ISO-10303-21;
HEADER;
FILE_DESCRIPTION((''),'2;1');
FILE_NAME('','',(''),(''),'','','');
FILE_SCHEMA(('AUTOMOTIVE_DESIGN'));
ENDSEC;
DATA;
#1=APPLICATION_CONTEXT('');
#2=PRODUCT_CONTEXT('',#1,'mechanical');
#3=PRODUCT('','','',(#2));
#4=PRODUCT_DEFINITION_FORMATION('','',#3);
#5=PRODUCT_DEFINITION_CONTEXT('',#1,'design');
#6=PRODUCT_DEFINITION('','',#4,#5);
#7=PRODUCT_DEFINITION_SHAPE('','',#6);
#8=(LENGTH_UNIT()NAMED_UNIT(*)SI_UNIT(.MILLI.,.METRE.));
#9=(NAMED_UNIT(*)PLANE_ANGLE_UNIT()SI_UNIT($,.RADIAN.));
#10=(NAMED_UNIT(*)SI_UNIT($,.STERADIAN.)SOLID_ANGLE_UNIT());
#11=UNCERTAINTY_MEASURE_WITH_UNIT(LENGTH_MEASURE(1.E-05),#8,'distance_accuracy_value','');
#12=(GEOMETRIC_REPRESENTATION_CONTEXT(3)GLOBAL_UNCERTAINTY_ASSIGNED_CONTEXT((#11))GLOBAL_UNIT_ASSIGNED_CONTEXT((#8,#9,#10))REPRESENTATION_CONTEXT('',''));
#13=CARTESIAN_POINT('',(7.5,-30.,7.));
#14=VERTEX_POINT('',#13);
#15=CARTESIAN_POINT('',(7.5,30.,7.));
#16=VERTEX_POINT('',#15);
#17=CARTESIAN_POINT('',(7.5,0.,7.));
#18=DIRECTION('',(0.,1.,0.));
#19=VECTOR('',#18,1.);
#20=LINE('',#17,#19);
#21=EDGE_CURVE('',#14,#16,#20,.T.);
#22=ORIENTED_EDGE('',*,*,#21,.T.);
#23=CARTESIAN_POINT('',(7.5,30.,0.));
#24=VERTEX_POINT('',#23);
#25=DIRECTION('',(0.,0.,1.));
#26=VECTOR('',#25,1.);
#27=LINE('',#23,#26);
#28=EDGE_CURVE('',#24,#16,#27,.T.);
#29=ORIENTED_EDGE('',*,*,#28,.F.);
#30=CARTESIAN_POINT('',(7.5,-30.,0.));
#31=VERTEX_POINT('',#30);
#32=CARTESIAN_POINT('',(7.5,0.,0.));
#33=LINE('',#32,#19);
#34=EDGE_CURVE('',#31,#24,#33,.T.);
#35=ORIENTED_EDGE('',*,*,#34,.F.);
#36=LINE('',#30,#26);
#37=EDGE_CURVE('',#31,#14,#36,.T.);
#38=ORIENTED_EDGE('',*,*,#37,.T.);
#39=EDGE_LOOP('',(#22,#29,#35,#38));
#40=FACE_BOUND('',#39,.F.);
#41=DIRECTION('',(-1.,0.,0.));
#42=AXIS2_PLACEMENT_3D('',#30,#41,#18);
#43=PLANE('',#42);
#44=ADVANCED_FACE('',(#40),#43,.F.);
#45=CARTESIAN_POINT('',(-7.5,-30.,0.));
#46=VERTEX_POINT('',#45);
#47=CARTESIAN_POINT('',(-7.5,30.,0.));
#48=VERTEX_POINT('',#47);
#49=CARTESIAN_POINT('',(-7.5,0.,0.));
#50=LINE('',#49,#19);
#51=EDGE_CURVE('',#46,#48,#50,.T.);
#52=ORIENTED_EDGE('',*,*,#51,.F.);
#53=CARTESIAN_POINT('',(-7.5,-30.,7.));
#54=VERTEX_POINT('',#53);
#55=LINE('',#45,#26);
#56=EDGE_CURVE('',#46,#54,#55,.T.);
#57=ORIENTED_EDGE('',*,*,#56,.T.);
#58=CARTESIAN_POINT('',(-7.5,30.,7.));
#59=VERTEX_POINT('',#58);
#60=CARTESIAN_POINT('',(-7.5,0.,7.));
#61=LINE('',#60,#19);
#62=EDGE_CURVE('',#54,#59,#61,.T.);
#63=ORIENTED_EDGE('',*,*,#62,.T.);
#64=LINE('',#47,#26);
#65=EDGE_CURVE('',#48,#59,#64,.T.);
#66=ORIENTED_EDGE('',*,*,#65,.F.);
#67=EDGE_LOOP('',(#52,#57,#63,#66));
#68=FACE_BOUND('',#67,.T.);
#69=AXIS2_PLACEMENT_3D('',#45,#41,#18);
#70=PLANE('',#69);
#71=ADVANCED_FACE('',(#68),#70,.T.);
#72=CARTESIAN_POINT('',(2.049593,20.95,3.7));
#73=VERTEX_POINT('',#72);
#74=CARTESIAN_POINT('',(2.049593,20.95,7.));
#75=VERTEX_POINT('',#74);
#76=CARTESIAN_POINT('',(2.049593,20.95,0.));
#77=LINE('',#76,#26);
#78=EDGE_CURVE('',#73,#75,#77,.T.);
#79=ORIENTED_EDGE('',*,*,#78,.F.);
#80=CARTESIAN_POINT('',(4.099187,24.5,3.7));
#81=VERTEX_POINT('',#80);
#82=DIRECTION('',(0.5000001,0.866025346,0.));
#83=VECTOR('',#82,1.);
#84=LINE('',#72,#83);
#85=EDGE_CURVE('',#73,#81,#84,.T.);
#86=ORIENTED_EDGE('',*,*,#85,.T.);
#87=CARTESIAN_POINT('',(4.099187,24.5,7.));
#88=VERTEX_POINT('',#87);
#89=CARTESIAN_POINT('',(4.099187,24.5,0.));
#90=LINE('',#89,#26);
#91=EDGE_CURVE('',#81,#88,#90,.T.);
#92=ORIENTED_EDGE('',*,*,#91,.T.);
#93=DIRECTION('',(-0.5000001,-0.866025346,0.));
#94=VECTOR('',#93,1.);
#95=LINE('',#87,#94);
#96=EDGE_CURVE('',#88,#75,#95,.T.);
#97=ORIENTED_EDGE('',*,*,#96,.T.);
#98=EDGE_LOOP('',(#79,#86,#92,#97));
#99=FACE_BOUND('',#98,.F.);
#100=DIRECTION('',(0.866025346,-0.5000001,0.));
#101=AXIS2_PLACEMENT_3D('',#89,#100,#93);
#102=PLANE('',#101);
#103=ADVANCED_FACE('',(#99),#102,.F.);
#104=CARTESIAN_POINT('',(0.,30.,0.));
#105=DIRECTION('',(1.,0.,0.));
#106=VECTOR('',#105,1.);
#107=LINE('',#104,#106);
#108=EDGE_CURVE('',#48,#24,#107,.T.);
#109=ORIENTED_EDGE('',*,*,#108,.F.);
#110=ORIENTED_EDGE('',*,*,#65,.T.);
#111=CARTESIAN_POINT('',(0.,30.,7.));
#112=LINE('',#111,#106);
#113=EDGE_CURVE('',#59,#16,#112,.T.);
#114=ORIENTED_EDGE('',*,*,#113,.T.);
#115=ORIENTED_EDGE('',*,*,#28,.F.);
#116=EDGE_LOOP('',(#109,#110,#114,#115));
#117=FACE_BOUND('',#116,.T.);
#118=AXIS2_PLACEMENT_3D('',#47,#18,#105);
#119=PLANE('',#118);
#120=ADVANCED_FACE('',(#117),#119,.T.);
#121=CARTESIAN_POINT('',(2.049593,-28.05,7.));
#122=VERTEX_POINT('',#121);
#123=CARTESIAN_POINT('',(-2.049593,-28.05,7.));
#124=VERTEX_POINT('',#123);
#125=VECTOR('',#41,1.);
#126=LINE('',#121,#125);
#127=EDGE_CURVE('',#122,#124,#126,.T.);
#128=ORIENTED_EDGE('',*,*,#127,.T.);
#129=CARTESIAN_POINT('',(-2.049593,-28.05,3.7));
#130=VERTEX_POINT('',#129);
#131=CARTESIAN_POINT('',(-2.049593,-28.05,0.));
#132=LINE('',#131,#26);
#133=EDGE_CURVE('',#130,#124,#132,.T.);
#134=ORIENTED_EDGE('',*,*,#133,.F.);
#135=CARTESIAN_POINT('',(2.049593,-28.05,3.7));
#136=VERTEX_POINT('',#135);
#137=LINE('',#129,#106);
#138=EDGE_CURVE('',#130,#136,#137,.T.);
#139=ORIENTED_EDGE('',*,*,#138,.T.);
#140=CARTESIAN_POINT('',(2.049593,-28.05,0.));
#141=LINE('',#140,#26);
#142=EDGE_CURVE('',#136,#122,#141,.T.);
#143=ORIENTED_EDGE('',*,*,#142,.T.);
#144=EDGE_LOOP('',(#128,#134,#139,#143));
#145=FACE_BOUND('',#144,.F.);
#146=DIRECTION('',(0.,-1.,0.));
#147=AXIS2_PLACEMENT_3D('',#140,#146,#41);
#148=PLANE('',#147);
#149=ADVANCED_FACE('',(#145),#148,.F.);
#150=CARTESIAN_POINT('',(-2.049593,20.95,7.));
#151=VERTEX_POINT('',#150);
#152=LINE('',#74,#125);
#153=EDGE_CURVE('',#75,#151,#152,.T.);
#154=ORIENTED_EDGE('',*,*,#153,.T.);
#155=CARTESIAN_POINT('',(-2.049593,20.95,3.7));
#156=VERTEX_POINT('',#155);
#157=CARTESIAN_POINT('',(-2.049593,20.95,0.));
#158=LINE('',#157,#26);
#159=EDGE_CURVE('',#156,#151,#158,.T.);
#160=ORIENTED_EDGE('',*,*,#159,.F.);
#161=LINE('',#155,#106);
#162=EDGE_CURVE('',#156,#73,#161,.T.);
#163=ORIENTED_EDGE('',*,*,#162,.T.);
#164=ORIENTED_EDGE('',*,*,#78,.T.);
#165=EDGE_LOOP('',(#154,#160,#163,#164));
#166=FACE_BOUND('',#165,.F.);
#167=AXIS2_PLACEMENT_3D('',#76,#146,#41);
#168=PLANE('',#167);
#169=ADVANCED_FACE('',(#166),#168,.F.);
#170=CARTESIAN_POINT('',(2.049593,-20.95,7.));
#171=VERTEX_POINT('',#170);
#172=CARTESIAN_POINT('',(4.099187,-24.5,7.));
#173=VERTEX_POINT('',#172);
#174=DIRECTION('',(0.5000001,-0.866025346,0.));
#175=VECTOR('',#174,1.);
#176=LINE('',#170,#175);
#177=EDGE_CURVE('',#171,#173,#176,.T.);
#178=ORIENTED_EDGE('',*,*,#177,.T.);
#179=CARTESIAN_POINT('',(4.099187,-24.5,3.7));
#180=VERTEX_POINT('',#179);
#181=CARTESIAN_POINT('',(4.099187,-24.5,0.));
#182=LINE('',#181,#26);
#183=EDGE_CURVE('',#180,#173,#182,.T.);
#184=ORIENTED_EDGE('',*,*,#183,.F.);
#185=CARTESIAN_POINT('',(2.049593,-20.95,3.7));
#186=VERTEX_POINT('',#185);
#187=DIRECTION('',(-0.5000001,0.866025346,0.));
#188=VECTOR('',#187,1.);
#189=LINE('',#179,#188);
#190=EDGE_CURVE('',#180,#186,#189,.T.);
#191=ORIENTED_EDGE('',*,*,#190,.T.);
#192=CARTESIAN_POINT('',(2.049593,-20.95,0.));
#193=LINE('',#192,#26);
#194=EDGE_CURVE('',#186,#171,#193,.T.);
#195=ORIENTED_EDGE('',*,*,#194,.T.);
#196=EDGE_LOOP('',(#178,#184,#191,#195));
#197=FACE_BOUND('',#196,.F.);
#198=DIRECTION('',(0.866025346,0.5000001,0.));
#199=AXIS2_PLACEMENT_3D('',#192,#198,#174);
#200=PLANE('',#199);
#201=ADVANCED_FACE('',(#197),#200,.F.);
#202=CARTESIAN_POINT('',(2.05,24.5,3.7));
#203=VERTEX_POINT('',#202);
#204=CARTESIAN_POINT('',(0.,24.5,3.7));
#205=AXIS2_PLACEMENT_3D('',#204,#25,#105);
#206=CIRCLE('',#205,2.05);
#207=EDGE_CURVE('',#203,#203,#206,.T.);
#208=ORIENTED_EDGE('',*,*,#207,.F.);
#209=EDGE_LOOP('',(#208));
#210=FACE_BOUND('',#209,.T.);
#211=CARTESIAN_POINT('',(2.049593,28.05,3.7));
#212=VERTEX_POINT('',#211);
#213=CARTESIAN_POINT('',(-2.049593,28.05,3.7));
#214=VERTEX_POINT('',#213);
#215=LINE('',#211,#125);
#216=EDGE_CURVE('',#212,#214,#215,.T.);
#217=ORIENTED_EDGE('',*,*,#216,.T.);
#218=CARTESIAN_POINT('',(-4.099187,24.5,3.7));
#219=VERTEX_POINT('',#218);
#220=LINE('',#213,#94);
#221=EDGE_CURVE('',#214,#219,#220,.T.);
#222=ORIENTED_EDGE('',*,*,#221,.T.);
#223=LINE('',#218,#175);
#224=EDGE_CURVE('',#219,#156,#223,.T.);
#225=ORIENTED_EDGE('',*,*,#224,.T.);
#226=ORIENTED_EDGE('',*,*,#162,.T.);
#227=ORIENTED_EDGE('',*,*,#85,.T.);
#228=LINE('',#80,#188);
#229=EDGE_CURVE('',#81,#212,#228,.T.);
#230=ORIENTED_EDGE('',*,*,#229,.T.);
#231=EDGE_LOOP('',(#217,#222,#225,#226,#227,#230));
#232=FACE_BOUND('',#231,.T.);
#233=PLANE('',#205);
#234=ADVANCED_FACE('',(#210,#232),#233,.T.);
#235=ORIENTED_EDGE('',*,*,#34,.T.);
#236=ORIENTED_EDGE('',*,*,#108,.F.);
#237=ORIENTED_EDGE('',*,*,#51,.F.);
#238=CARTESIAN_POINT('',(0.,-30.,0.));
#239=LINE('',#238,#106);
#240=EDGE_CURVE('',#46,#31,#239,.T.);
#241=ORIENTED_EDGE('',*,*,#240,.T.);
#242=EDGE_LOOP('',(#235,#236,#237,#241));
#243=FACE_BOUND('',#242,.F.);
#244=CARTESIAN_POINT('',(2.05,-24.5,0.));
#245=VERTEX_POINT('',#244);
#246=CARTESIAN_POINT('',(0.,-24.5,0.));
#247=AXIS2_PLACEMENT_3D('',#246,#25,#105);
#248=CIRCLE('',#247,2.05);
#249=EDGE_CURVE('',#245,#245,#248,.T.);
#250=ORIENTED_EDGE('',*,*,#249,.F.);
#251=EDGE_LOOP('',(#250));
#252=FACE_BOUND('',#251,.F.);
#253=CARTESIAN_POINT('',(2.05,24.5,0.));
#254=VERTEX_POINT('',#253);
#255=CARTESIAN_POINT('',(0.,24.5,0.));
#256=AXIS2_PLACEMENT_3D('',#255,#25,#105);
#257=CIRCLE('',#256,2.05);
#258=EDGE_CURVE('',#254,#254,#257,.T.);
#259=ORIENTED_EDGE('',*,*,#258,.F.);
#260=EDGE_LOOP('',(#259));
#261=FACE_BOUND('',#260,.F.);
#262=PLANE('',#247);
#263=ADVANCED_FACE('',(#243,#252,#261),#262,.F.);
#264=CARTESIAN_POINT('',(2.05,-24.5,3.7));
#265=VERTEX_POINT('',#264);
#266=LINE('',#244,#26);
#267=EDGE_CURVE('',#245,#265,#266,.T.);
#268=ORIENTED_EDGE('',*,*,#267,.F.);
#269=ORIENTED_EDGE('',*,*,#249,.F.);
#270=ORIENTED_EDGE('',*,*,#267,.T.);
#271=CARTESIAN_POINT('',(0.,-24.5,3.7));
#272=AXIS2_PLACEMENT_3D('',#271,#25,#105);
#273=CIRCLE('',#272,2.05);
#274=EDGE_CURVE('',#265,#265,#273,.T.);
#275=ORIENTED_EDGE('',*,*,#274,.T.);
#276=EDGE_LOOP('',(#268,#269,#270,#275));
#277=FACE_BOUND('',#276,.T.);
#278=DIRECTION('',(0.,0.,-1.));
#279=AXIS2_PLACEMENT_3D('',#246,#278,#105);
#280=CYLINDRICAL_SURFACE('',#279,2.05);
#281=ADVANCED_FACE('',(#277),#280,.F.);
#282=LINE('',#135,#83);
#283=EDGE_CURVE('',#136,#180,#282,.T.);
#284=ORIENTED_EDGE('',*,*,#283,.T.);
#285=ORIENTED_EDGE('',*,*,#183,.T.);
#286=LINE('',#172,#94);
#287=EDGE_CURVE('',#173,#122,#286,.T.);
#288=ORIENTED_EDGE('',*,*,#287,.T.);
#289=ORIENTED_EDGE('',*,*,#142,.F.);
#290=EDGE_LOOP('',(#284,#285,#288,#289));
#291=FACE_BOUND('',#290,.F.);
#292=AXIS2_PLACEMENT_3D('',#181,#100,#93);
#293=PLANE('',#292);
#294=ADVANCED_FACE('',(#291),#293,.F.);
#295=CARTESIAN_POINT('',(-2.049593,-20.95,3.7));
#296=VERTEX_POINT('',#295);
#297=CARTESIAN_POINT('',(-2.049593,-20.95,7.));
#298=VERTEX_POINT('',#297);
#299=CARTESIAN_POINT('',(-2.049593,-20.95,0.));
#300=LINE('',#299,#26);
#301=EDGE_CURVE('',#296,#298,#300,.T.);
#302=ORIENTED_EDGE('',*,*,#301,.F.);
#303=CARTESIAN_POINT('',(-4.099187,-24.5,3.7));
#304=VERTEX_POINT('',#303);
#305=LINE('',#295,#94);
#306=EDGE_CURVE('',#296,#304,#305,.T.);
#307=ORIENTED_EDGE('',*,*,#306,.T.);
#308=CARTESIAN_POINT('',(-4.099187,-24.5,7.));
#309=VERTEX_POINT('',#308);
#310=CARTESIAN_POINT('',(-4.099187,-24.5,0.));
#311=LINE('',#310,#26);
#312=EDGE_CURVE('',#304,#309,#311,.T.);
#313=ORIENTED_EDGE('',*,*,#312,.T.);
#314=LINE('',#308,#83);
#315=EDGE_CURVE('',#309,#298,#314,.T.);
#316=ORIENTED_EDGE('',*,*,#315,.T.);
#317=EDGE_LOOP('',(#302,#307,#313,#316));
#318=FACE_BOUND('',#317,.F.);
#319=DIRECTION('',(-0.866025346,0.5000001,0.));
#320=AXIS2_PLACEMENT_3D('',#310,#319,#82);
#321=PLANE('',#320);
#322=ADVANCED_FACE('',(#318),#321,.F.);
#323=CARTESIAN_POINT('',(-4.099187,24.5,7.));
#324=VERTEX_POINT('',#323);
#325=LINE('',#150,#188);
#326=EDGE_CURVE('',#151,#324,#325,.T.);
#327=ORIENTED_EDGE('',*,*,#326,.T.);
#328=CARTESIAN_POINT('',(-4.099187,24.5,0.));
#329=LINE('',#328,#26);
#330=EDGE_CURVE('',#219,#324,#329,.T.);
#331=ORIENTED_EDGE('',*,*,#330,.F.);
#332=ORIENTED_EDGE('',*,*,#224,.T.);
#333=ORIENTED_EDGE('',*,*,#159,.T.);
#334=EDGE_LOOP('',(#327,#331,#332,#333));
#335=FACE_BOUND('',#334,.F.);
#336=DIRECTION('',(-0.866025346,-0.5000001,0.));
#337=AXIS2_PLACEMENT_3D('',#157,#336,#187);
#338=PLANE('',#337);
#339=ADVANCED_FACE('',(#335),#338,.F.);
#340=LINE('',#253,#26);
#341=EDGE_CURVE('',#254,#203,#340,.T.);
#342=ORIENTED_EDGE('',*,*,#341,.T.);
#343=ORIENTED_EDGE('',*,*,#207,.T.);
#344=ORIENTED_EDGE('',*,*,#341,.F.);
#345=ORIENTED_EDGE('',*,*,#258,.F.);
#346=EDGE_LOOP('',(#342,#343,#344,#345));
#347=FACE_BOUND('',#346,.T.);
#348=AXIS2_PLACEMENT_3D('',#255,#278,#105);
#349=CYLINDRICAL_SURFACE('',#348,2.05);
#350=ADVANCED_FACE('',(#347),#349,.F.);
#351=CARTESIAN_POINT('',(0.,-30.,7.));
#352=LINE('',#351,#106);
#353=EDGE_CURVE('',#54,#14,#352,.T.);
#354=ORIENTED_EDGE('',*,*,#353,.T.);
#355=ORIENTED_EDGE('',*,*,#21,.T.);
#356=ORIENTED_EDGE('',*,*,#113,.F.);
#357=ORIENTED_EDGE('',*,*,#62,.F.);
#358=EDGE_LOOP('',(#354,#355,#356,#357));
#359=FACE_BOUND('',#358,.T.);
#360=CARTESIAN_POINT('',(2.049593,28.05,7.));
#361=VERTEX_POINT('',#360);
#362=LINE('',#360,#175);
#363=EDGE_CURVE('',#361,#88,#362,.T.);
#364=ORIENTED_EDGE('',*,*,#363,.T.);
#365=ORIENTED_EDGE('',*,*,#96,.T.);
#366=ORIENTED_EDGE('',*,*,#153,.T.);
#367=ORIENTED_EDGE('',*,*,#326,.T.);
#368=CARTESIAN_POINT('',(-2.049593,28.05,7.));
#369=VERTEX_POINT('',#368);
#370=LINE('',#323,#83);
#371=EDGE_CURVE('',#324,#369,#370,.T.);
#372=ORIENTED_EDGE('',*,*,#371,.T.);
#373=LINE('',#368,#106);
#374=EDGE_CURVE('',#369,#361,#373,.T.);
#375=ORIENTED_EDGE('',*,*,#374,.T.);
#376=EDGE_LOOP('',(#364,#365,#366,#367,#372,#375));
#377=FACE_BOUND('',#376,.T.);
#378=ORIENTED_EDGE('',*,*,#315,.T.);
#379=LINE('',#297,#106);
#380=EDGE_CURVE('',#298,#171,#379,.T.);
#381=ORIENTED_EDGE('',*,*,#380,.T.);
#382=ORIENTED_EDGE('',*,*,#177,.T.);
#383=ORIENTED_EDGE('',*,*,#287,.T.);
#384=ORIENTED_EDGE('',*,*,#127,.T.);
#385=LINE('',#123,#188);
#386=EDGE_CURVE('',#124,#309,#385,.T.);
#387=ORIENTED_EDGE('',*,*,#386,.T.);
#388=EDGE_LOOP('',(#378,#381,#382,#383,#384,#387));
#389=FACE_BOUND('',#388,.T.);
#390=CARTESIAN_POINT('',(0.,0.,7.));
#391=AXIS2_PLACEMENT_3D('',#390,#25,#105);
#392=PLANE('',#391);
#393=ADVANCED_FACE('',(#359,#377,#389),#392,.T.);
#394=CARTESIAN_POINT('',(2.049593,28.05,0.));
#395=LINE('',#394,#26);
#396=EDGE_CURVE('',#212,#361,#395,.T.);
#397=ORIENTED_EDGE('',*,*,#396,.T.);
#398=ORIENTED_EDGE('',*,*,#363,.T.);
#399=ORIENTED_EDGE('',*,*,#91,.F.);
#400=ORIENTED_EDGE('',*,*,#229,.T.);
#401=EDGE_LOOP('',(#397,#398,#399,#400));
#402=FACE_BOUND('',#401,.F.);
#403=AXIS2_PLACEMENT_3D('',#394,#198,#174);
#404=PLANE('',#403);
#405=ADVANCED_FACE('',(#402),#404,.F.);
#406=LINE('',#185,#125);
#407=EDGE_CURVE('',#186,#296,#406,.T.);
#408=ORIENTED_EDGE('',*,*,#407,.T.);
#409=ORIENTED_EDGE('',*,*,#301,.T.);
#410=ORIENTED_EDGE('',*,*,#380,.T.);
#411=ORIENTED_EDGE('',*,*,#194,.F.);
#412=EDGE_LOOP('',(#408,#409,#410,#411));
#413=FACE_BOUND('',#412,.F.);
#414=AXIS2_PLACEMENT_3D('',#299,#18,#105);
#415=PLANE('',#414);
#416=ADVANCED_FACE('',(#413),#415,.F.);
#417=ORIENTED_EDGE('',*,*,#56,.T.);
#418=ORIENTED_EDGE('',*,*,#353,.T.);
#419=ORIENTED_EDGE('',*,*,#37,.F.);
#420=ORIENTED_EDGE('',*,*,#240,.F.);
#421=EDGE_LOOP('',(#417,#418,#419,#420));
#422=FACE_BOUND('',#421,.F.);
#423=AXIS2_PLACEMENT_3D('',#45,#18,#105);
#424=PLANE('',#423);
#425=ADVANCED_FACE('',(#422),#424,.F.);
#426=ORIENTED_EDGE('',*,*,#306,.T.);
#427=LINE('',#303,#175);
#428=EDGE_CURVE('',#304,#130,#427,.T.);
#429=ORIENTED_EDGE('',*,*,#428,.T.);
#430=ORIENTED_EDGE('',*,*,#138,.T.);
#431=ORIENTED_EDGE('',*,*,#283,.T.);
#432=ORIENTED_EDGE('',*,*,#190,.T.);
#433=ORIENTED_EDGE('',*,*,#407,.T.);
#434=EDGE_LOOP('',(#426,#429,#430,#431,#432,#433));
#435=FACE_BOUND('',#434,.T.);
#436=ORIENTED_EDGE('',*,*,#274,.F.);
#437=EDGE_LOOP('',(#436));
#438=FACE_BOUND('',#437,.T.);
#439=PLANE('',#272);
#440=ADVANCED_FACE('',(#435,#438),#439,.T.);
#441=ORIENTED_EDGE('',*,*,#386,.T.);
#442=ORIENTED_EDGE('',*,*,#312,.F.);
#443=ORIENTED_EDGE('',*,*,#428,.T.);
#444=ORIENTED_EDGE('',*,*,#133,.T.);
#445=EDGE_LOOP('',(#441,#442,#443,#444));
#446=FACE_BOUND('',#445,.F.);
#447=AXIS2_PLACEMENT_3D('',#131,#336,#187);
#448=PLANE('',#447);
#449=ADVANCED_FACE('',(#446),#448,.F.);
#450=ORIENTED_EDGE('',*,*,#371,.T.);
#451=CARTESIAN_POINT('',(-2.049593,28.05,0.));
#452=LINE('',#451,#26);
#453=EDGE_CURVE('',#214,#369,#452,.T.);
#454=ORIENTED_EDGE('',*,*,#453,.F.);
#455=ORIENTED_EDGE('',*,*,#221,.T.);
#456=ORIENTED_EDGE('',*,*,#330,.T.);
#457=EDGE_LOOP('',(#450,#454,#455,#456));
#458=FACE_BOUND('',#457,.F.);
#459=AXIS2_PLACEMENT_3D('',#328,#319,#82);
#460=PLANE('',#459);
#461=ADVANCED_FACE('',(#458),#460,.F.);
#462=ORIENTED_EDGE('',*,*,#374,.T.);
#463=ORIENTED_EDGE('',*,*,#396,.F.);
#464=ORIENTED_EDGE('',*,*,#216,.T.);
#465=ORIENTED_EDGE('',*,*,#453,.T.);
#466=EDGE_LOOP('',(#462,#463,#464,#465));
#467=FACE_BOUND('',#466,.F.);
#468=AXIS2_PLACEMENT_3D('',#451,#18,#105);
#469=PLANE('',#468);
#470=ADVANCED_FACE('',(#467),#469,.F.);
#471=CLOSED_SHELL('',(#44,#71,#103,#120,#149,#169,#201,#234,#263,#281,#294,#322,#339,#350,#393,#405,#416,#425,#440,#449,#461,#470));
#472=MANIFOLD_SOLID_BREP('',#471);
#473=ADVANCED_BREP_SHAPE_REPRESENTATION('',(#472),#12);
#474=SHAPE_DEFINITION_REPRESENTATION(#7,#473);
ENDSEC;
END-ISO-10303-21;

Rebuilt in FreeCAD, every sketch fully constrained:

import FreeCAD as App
import Part
import Sketcher
Q = App.Units.Quantity


def add_polygon(sketch, points):
    """Adds a closed chain of lines whose ends are joined by coincident constraints."""
    first, n = sketch.GeometryCount, len(points)
    for a, b in zip(points, points[1:] + points[:1]):
        sketch.addGeometry(Part.LineSegment(App.Vector(*a, 0), App.Vector(*b, 0)), False)
    for i in range(n):
        sketch.addConstraint(Sketcher.Constraint("Coincident", first + i, 2, first + (i + 1) % n, 1))

doc = App.newDocument("Part")
body = doc.addObject("PartDesign::Body", "Body")

sketch1 = body.newObject("Sketcher::SketchObject", "Sketch")
sketch1.AttachmentSupport = (doc.getObject("XY_Plane"), [""])
sketch1.MapMode = "FlatFace"
add_polygon(sketch1, [(-7.5, 30), (-7.5, -30), (7.5, -30), (7.5, 30)])
add_polygon(sketch1, [(-4.1, -24.5), (-2, -20.9), (2, -20.9), (4.1, -24.5), (2, -28.1), (-2, -28.1)])
add_polygon(sketch1, [(2, 28.1), (4.1, 24.5), (2, 20.9), (-2, 20.9), (-4.1, 24.5), (-2, 28.1)])
sketch1.addConstraint([
    Sketcher.Constraint("Vertical", 0),
    Sketcher.Constraint("Horizontal", 1),
    Sketcher.Constraint("Vertical", 2),
    Sketcher.Constraint("Horizontal", 3),
    Sketcher.Constraint("Horizontal", 5),
    Sketcher.Constraint("Horizontal", 8),
    Sketcher.Constraint("Horizontal", 12),
    Sketcher.Constraint("Horizontal", 15),
    Sketcher.Constraint("Symmetric", 0, 2, 2, 2, -1, 1),
    Sketcher.Constraint("Symmetric", 9, 2, 10, 2, -1, 1),
    Sketcher.Constraint("Symmetric", 4, 2, 11, 2, -1, 1),
    Sketcher.Constraint("Symmetric", 6, 2, 13, 2, -1, 1),
    Sketcher.Constraint("Symmetric", 7, 2, 14, 2, -1, 1),
    Sketcher.Constraint("Symmetric", 6, 2, 9, 2, -2),
    Sketcher.Constraint("Parallel", 4, 7),
    Sketcher.Constraint("Parallel", 6, 9),
    Sketcher.Constraint("Parallel", 9, 10),
    Sketcher.Constraint("Parallel", 10, 13),
    Sketcher.Constraint("Vertical", 5, 2, 7, 2),
    Sketcher.Constraint("Vertical", 4, 2, 8, 2),
    Sketcher.Constraint("DistanceX", 1, 1, 1, 2, Q("15 mm")),
    Sketcher.Constraint("DistanceY", 0, 2, 0, 1, Q("60 mm")),
    Sketcher.Constraint("Angle", 4, Q("59.999993 deg")),
    Sketcher.Constraint("DistanceY", 6, 2, 10, 2, Q("49 mm")),
    Sketcher.Constraint("DistanceY", 7, 2, 5, 2, Q("7.1 mm")),
    Sketcher.Constraint("DistanceX", 5, 1, 5, 2, Q("4.099186 mm")),
])
pad1 = body.newObject("PartDesign::Pad", "Pad")
pad1.Profile = sketch1
pad1.Length = 7

sketch2 = body.newObject("Sketcher::SketchObject", "Sketch001")
sketch2.AttachmentSupport = (doc.getObject("XY_Plane"), [""])
sketch2.MapMode = "FlatFace"
add_polygon(sketch2, [(4.1, -24.5), (2, -20.9), (-2, -20.9), (-4.1, -24.5), (-2, -28.1), (2, -28.1)])
sketch2.addGeometry(Part.Circle(App.Vector(0, -24.5, 0), App.Vector(0, 0, 1), 2), False)
add_polygon(sketch2, [(-2, 20.9), (2, 20.9), (4.1, 24.5), (2, 28.1), (-2, 28.1), (-4.1, 24.5)])
sketch2.addGeometry(Part.Circle(App.Vector(0, 24.5, 0), App.Vector(0, 0, 1), 2), False)
sketch2.addConstraint([
    Sketcher.Constraint("Horizontal", 1),
    Sketcher.Constraint("Horizontal", 4),
    Sketcher.Constraint("Horizontal", 7),
    Sketcher.Constraint("Horizontal", 10),
    Sketcher.Constraint("Equal", 6, 13),
    Sketcher.Constraint("Symmetric", 6, 3, 13, 3, -1, 1),
    Sketcher.Constraint("Symmetric", 1, 2, 7, 2, -1, 1),
    Sketcher.Constraint("Symmetric", 2, 2, 8, 2, -1, 1),
    Sketcher.Constraint("Symmetric", 3, 2, 9, 2, -1, 1),
    Sketcher.Constraint("Symmetric", 5, 2, 11, 2, -1, 1),
    Sketcher.Constraint("Symmetric", 2, 2, 5, 2, -2),
    Sketcher.Constraint("PointOnObject", 6, 3, -2),
    Sketcher.Constraint("Parallel", 0, 3),
    Sketcher.Constraint("Parallel", 2, 5),
    Sketcher.Constraint("Parallel", 8, 11),
    Sketcher.Constraint("Parallel", 9, 12),
    Sketcher.Constraint("Horizontal", 6, 3, 2, 2),
    Sketcher.Constraint("Vertical", 1, 2, 3, 2),
    Sketcher.Constraint("Vertical", 0, 2, 4, 2),
    Sketcher.Constraint("Diameter", 6, Q("4.1 mm")),
    Sketcher.Constraint("Angle", 0, Q("120.000007 deg")),
    Sketcher.Constraint("DistanceY", 6, 3, 13, 3, Q("49 mm")),
    Sketcher.Constraint("DistanceY", 3, 2, 1, 2, Q("7.1 mm")),
    Sketcher.Constraint("DistanceX", 1, 2, 1, 1, Q("4.099186 mm")),
])
pad2 = body.newObject("PartDesign::Pad", "Pad001")
pad2.Profile = sketch2
pad2.Length = 3.7

doc.recompute()
